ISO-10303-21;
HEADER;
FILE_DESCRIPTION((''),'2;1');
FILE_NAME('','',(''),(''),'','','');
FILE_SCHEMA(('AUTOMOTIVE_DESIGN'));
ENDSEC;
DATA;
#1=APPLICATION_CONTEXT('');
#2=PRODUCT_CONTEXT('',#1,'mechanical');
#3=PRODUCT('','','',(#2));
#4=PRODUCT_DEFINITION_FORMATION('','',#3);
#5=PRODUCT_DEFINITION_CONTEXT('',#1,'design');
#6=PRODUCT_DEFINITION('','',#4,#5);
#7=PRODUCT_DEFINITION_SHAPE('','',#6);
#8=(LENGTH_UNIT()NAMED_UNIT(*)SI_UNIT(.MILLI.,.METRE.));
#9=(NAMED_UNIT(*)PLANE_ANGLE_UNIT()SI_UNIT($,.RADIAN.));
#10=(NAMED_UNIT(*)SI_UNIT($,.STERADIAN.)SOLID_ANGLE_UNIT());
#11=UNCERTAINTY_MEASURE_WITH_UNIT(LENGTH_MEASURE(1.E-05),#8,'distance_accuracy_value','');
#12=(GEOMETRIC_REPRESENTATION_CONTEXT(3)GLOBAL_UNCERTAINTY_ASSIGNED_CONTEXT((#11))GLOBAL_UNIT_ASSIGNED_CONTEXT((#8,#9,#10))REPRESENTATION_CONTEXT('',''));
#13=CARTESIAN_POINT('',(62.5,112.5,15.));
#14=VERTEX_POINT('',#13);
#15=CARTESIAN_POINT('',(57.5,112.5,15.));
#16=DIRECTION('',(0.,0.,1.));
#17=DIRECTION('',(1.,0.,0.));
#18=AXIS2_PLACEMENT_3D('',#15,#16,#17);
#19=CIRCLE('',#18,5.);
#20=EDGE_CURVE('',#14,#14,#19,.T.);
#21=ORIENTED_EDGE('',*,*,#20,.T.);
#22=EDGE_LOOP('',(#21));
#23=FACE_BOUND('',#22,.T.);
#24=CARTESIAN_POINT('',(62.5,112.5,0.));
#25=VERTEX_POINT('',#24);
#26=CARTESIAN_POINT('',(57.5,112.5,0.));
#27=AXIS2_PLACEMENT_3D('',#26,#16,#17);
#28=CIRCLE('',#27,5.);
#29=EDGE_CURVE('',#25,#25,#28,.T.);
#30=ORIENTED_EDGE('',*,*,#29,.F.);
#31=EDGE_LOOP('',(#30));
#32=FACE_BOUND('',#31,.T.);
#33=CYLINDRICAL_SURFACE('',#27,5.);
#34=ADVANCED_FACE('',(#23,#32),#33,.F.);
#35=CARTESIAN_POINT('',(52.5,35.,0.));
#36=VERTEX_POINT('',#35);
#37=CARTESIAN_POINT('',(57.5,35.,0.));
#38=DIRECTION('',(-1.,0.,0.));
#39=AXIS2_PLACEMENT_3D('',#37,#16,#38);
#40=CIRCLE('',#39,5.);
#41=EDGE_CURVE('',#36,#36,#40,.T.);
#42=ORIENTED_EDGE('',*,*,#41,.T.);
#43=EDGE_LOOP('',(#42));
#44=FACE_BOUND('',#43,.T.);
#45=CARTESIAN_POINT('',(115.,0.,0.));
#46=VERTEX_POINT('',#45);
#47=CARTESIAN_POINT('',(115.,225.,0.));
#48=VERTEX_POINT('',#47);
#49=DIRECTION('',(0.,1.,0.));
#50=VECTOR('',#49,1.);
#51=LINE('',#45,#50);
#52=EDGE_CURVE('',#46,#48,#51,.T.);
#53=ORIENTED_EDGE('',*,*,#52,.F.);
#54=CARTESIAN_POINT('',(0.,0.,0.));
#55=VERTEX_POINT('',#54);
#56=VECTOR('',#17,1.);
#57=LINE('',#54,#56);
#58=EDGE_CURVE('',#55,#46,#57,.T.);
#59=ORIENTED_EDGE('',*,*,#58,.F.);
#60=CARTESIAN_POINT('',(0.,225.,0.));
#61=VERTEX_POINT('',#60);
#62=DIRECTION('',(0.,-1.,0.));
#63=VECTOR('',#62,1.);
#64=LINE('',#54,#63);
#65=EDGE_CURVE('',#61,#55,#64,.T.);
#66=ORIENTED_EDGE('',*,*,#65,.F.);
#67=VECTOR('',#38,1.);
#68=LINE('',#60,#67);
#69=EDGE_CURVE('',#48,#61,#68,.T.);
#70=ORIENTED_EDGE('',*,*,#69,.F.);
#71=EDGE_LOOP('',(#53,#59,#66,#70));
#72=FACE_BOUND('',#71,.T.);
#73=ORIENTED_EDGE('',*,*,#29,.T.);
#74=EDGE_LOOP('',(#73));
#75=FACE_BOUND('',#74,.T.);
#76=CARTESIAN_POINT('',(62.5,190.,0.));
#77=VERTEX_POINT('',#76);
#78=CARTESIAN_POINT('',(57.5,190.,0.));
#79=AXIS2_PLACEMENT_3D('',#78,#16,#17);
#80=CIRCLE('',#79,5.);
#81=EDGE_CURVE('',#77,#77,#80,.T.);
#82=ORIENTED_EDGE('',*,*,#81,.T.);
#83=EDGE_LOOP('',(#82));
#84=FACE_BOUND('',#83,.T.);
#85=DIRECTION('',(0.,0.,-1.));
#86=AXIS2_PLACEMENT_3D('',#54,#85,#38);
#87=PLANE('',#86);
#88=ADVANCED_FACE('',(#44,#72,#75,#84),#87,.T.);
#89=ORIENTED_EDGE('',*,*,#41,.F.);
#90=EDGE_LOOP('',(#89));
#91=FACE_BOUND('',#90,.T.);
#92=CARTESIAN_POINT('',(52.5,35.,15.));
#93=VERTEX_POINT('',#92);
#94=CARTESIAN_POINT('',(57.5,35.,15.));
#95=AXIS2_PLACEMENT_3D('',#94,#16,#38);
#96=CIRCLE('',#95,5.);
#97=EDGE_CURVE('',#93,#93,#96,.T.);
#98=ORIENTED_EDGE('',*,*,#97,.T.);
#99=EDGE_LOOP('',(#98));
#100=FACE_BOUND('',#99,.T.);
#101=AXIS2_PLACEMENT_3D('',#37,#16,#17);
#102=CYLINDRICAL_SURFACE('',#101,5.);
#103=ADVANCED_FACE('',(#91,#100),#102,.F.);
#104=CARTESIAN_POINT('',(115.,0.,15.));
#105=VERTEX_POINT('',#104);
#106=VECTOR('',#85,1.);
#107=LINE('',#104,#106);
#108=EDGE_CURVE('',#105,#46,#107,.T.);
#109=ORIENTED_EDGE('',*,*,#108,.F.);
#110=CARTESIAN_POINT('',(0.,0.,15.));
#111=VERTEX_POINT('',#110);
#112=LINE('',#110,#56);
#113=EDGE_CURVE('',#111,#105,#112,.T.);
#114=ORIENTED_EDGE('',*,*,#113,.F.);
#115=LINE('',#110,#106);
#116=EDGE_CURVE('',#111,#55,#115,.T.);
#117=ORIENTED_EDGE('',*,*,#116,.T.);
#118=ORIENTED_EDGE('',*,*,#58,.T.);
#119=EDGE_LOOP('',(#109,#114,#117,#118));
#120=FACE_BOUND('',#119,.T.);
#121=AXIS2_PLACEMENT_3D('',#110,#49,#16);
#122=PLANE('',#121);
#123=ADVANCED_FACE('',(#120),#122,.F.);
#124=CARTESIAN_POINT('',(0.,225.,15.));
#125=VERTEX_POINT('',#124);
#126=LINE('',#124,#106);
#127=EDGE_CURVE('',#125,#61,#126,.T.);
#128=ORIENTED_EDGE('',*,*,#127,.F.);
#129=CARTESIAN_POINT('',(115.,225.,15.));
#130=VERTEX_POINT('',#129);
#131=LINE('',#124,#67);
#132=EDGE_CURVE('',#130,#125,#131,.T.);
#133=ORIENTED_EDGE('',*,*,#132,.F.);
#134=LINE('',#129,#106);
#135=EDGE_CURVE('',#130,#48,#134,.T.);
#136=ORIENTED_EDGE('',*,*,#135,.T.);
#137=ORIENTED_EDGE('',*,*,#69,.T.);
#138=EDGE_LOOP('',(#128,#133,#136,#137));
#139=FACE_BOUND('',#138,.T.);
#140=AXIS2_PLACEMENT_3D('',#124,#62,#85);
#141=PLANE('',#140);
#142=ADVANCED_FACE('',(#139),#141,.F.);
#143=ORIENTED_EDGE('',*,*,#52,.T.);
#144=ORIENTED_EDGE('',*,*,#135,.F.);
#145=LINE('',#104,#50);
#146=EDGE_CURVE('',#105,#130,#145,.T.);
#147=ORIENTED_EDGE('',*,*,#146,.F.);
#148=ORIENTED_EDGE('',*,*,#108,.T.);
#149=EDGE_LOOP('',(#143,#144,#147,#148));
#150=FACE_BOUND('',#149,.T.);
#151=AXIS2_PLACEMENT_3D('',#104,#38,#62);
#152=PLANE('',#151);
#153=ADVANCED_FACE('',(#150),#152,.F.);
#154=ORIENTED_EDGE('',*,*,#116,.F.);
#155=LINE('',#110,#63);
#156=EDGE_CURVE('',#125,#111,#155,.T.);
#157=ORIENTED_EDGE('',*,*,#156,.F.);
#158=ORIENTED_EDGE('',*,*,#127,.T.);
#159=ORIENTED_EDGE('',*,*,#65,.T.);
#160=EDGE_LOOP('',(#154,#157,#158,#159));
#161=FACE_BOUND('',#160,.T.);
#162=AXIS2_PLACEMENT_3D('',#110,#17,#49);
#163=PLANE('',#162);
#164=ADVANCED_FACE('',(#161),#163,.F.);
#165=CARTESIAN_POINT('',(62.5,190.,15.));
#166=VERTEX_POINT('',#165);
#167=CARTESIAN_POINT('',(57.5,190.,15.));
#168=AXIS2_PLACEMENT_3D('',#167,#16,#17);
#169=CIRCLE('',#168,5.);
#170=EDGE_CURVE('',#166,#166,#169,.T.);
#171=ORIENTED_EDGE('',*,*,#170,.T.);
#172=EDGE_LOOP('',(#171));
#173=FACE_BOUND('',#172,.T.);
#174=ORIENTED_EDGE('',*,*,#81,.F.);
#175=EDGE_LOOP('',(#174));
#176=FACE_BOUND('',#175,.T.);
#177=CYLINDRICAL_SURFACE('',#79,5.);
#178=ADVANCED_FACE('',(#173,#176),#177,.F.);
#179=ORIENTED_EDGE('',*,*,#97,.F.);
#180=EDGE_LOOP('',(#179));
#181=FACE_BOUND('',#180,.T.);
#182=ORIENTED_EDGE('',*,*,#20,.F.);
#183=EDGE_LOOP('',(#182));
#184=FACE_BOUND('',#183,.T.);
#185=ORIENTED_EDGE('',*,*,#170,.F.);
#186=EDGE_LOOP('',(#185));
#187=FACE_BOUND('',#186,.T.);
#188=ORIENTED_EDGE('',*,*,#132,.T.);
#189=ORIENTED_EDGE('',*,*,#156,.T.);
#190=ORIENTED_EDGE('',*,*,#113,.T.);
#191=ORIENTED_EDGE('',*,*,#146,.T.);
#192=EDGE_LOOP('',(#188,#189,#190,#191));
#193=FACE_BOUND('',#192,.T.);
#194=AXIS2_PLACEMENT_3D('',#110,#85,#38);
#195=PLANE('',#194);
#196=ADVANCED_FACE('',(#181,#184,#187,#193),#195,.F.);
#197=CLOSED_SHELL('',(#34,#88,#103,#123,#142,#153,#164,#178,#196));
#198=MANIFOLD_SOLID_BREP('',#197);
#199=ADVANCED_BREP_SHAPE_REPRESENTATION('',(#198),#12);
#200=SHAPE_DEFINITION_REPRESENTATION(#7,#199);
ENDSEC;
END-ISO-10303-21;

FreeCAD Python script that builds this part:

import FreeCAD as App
import Part
import Sketcher

V = App.Vector
Q = App.Units.Quantity

doc = App.newDocument("Part")
params = doc.addObject("Spreadsheet::Sheet", "Params")
for row, (alias, value) in enumerate([
    ("sketch1_width", "115 mm"),
    ("sketch1_height", "225 mm"),
    ("pad1_length", "15 mm"),
    ("sketch2_diameter", "10 mm"),
], start=1):
    params.set(f"A{row}", alias)
    params.set(f"B{row}", "=" + value)
    params.setAlias(f"B{row}", alias)

body = doc.addObject("PartDesign::Body", "Body")

sketch1 = doc.addObject("Sketcher::SketchObject", "Sketch")
body.addObject(sketch1)
sketch1.AttachmentSupport = (doc.XY_Plane, [""])
sketch1.MapMode = "FlatFace"
sketch1.addGeometry([
    Part.LineSegment(V(0, 225, 0), V(0, 0, 0)),
    Part.LineSegment(V(0, 0, 0), V(115, 0, 0)),
    Part.LineSegment(V(115, 0, 0), V(115, 225, 0)),
    Part.LineSegment(V(115, 225, 0), V(0, 225, 0)),
], False)
sketch1.addConstraint([
    Sketcher.Constraint("Coincident", 0, 2, 1, 1),
    Sketcher.Constraint("Coincident", 1, 2, 2, 1),
    Sketcher.Constraint("Coincident", 2, 2, 3, 1),
    Sketcher.Constraint("Coincident", 3, 2, 0, 1),
    Sketcher.Constraint("Vertical", 0),
    Sketcher.Constraint("Horizontal", 1),
    Sketcher.Constraint("Vertical", 2),
    Sketcher.Constraint("Horizontal", 3),
    Sketcher.Constraint("Coincident", 0, 2, -1, 1),
    Sketcher.Constraint("DistanceX", 1, 1, 1, 2, Q("115 mm")),
    Sketcher.Constraint("DistanceY", 0, 2, 0, 1, Q("225 mm")),
])
sketch1.setExpression("Constraints[9]", "Params.sketch1_width")
sketch1.setExpression("Constraints[10]", "Params.sketch1_height")
pad1 = doc.addObject("PartDesign::Pad", "Pad")
body.addObject(pad1)
pad1.Profile = sketch1
pad1.setExpression("Length", "Params.pad1_length")

sketch2 = doc.addObject("Sketcher::SketchObject", "Sketch001")
body.addObject(sketch2)
sketch2.AttachmentSupport = (doc.XY_Plane, [""])
sketch2.MapMode = "FlatFace"
sketch2.AttachmentOffset = App.Placement(V(0, 0, 15), App.Rotation())
sketch2.addGeometry([
    Part.Circle(V(58, 190, 0), V(0, 0, 1), 5),
    Part.Circle(V(58, 112, 0), V(0, 0, 1), 5),
    Part.Circle(V(58, 35, 0), V(0, 0, 1), 5),
], False)
sketch2.addConstraint([
    Sketcher.Constraint("Equal", 0, 1),
    Sketcher.Constraint("Equal", 1, 2),
    Sketcher.Constraint("Vertical", 0, 3, 1, 3),
    Sketcher.Constraint("Vertical", 1, 3, 2, 3),
    Sketcher.Constraint("Diameter", 0, Q("10 mm")),
    Sketcher.Constraint("DistanceY", -1, 1, 0, 3, Q("190 mm")),
    Sketcher.Constraint("DistanceY", -1, 1, 2, 3, Q("35 mm")),
    Sketcher.Constraint("DistanceX", -1, 1, 0, 3, Q("57.5 mm")),
    Sketcher.Constraint("DistanceY", -1, 1, 1, 3, Q("112.5 mm")),
])
sketch2.setExpression("Constraints[4]", "Params.sketch2_diameter")
pocket1 = doc.addObject("PartDesign::Pocket", "Pocket")
body.addObject(pocket1)
pocket1.Profile = sketch2
pocket1.Type = "ThroughAll"

doc.recompute()
